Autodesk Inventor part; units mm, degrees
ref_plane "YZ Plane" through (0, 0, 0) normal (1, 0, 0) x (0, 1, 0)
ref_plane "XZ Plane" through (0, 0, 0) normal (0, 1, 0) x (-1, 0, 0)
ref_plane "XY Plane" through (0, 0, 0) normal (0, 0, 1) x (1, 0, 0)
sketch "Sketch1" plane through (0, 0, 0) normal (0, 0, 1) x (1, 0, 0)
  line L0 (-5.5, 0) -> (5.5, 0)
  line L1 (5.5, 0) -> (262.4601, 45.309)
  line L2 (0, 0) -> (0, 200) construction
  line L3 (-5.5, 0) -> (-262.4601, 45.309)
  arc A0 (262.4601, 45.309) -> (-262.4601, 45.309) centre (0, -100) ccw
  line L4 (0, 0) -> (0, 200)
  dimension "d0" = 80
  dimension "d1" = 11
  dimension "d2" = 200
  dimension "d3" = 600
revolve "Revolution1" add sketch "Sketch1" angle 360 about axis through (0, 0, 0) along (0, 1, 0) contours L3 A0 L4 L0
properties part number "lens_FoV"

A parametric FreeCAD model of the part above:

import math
import FreeCAD as App
import Part
import Sketcher

V = App.Vector
Q = App.Units.Quantity

doc = App.newDocument("Part")
body = doc.addObject("PartDesign::Body", "Body")

# Sketch on XY plane
sketch1 = doc.addObject("Sketcher::SketchObject", "Sketch")
body.addObject(sketch1)
sketch1.AttachmentSupport = (doc.XY_Plane, [""])
sketch1.MapMode = "FlatFace"
sketch1.addGeometry([
    Part.LineSegment(V(-262, 45, 0), V(-6, 0, 0)),
    Part.LineSegment(V(-6, 0, 0), V(0, 0, 0)),
    Part.LineSegment(V(0, 0, 0), V(0, 200, 0)),
    Part.ArcOfCircle(Part.Circle(V(0, -100, 0), V(0, 0, 1), 300), math.radians(90), math.radians(151)),
], False)
sketch1.addConstraint([
    Sketcher.Constraint("Coincident", 0, 2, 1, 1),
    Sketcher.Constraint("Coincident", 1, 2, 2, 1),
    Sketcher.Constraint("Coincident", 2, 2, 3, 1),
    Sketcher.Constraint("Coincident", 3, 2, 0, 1),
    Sketcher.Constraint("Horizontal", 1),
    Sketcher.Constraint("Vertical", 2),
    Sketcher.Constraint("Coincident", 1, 2, -1, 1),
    Sketcher.Constraint("PointOnObject", 3, 3, -2),
    Sketcher.Constraint("Radius", 3, Q("300 mm")),
    Sketcher.Constraint("DistanceY", 2, 1, 2, 2, Q("200 mm")),
    Sketcher.Constraint("Angle", 0, Q("-10 deg")),
    Sketcher.Constraint("DistanceX", 1, 1, 1, 2, Q("5.5 mm")),
])
revolution = doc.addObject("PartDesign::Revolution", "Revolution")
body.addObject(revolution)
revolution.Profile = sketch1
revolution.ReferenceAxis = (sketch1, ["V_Axis"])
revolution.Angle = 360

doc.recompute()
